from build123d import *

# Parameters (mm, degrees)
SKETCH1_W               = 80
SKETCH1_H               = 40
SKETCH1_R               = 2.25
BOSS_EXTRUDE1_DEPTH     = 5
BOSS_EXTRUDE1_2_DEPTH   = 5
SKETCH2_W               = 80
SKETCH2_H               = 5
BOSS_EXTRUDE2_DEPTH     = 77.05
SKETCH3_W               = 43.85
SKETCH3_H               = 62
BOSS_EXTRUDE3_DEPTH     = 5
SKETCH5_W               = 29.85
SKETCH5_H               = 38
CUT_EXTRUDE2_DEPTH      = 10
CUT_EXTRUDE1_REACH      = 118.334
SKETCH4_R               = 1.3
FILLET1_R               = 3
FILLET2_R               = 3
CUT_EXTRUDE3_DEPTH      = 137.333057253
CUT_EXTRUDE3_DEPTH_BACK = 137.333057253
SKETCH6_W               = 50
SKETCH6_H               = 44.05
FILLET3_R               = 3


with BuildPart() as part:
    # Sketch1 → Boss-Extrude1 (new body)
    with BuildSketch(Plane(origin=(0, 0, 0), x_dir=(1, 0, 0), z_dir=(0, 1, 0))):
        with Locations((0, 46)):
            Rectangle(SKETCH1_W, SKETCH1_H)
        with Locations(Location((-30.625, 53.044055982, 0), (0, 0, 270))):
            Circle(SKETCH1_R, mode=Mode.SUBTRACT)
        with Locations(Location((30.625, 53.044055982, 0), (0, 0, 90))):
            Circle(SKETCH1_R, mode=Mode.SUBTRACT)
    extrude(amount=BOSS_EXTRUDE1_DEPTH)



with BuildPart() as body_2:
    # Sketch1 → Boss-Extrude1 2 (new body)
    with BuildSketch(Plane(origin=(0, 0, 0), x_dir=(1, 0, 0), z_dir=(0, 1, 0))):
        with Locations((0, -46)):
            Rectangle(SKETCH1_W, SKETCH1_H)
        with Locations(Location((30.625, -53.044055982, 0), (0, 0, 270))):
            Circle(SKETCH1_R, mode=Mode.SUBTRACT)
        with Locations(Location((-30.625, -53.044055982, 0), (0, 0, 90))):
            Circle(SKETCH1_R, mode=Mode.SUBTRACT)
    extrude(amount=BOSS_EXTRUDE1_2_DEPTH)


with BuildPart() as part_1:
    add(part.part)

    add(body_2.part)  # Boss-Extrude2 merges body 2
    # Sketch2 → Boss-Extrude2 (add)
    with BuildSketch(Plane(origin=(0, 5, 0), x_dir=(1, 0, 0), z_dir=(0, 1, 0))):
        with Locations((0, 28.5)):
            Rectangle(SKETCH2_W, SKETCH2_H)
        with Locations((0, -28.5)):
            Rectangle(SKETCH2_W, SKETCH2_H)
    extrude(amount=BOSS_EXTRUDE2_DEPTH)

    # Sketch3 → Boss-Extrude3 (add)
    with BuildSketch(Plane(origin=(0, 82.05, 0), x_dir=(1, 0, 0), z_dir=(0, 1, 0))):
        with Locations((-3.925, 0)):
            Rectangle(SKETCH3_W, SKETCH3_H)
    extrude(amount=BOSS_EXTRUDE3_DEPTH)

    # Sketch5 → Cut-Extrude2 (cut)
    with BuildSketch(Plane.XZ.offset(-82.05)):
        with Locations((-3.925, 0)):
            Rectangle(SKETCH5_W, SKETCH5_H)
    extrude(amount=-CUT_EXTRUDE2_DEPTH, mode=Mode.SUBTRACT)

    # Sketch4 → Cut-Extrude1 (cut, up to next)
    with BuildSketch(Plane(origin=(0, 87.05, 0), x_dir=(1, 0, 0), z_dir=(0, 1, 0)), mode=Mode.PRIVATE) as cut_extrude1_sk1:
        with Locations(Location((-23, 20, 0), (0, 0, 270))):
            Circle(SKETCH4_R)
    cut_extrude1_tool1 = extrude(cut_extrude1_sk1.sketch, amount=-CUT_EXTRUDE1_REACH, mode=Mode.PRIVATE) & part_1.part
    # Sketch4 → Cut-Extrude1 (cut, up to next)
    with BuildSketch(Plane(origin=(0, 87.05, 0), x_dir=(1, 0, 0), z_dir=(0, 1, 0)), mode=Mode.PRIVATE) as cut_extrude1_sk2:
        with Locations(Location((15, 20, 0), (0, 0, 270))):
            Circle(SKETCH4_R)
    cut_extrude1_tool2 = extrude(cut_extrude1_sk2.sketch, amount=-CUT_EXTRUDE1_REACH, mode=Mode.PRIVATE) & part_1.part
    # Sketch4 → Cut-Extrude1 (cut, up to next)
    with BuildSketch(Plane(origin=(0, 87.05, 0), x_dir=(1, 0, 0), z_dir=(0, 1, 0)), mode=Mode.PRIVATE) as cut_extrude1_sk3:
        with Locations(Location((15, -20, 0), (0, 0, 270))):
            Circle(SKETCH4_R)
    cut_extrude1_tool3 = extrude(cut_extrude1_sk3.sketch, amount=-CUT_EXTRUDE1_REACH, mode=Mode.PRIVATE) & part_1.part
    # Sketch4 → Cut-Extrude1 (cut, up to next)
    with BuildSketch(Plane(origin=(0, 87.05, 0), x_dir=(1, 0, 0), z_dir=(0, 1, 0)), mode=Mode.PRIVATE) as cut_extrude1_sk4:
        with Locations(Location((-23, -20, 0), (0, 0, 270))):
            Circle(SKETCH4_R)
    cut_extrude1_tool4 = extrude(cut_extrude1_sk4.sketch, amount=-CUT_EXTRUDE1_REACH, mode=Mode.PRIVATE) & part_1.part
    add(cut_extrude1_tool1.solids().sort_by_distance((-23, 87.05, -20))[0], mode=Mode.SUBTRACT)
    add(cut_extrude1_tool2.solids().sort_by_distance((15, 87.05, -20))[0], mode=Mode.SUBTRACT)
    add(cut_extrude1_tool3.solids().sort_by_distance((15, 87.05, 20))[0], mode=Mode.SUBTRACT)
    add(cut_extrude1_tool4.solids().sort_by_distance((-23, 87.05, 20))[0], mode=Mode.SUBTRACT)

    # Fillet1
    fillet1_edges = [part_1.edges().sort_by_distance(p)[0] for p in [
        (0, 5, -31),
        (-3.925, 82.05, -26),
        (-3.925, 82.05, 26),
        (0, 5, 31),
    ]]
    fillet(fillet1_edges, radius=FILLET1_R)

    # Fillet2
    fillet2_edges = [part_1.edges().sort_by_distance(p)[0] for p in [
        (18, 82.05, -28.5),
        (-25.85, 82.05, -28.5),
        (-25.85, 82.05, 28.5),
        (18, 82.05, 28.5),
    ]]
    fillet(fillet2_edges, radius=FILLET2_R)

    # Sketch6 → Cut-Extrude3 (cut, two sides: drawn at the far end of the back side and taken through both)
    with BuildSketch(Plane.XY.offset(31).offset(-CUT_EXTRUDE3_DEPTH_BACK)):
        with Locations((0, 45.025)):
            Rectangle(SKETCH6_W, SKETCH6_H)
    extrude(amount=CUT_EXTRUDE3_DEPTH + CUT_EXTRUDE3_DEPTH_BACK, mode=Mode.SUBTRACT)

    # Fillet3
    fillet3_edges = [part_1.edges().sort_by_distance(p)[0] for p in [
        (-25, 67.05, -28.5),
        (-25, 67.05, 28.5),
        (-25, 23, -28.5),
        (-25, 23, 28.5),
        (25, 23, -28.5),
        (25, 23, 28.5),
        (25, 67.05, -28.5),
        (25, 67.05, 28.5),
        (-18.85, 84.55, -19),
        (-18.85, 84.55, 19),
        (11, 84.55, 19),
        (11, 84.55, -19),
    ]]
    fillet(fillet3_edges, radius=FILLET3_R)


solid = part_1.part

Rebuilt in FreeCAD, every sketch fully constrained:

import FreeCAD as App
import Part
import Sketcher
Q = App.Units.Quantity


def edges_at(feature, points):
    """Names of the edges that pass closest to the given points."""
    edges = feature.Shape.Edges
    near = lambda p: min(range(len(edges)), key=lambda i: edges[i].distToShape(Part.Vertex(*p))[0])
    return sorted({f"Edge{near(p) + 1}" for p in points})


def add_polygon(sketch, points):
    """Adds a closed chain of lines whose ends are joined by coincident constraints."""
    first, n = sketch.GeometryCount, len(points)
    for a, b in zip(points, points[1:] + points[:1]):
        sketch.addGeometry(Part.LineSegment(App.Vector(*a, 0), App.Vector(*b, 0)), False)
    for i in range(n):
        sketch.addConstraint(Sketcher.Constraint("Coincident", first + i, 2, first + (i + 1) % n, 1))

doc = App.newDocument("Part")
params = doc.addObject("Spreadsheet::Sheet", "Params")
for row, (alias, value) in enumerate([
    ("sketch1_diameter", "4.5 mm"),
    ("sketch1_width", "80 mm"),
    ("sketch1_height", "40 mm"),
    ("pad1_length", "5 mm"),
    ("sketch2_diameter", "4.5 mm"),
    ("sketch2_width", "80 mm"),
    ("sketch2_height", "40 mm"),
    ("pad2_length", "5 mm"),
    ("sketch3_width", "80 mm"),
    ("sketch3_height", "5 mm"),
    ("pad3_length", "77.05 mm"),
    ("sketch4_height", "62 mm"),
    ("sketch4_width", "43.85 mm"),
    ("pad4_length", "5 mm"),
    ("sketch5_height", "38 mm"),
    ("sketch5_width", "29.85 mm"),
    ("pocket1_length", "10 mm"),
    ("sketch6_diameter", "2.6 mm"),
    ("sketch7_diameter", "2.6 mm"),
    ("sketch8_diameter", "2.6 mm"),
    ("sketch9_diameter", "2.6 mm"),
    ("fillet_radius", "3 mm"),
    ("fillet2_radius", "3 mm"),
    ("sketch10_width", "50 mm"),
    ("sketch10_height", "44.05 mm"),
    ("fillet3_radius", "3 mm"),
], start=1):
    params.set(f"A{row}", alias)
    params.set(f"B{row}", "=" + value)
    params.setAlias(f"B{row}", alias)

body = doc.addObject("PartDesign::Body", "Body")

sketch1 = body.newObject("Sketcher::SketchObject", "Sketch")
sketch1.AttachmentSupport = (doc.getObject("XZ_Plane"), [""])
sketch1.MapMode = "FlatFace"
add_polygon(sketch1, [(-40, -66), (-40, -26), (40, -26), (40, -66)])
sketch1.addGeometry(Part.Circle(App.Vector(-30.6, -53, 0), App.Vector(0, 0, 1), 2.2), False)
sketch1.addGeometry(Part.Circle(App.Vector(30.6, -53, 0), App.Vector(0, 0, 1), 2.2), False)
sketch1.addConstraint(Sketcher.Constraint("Vertical", 0))
sketch1.addConstraint(Sketcher.Constraint("Horizontal", 1))
sketch1.addConstraint(Sketcher.Constraint("Vertical", 2))
sketch1.addConstraint(Sketcher.Constraint("Horizontal", 3))
sketch1.addConstraint(Sketcher.Constraint("Equal", 4, 5))
sketch1.addConstraint(Sketcher.Constraint("Symmetric", 4, 3, 5, 3, -2))
sketch1.addConstraint(Sketcher.Constraint("Diameter", 4, Q("4.5 mm")))
sketch1.addConstraint(Sketcher.Constraint("DistanceX", 1, 1, 1, 2, Q("80 mm")))
sketch1.addConstraint(Sketcher.Constraint("DistanceY", 0, 1, 0, 2, Q("40 mm")))
sketch1.addConstraint(Sketcher.Constraint("DistanceX", 0, 2, -1, 1, Q("40 mm")))
sketch1.addConstraint(Sketcher.Constraint("DistanceY", 0, 2, -1, 1, Q("26 mm")))
sketch1.addConstraint(Sketcher.Constraint("DistanceX", 4, 3, 5, 3, Q("61.25 mm")))
sketch1.addConstraint(Sketcher.Constraint("DistanceY", 4, 3, -1, 1, Q("53.044056 mm")))
sketch1.setExpression("Constraints[10]", "Params.sketch1_diameter")
sketch1.setExpression("Constraints[11]", "Params.sketch1_width")
sketch1.setExpression("Constraints[12]", "Params.sketch1_height")
pad1 = body.newObject("PartDesign::Pad", "Pad")
pad1.Profile = sketch1
pad1.setExpression("Length", "Params.pad1_length")
pad1.Reversed = True
body2 = doc.addObject("PartDesign::Body", "Body001")

sketch2 = body2.newObject("Sketcher::SketchObject", "Sketch001")
sketch2.AttachmentSupport = (doc.getObject("XZ_Plane001"), [""])
sketch2.MapMode = "FlatFace"
add_polygon(sketch2, [(-40, 26), (-40, 66), (40, 66), (40, 26)])
sketch2.addGeometry(Part.Circle(App.Vector(-30.6, 53, 0), App.Vector(0, 0, 1), 2.2), False)
sketch2.addGeometry(Part.Circle(App.Vector(30.6, 53, 0), App.Vector(0, 0, 1), 2.2), False)
sketch2.addConstraint(Sketcher.Constraint("Vertical", 0))
sketch2.addConstraint(Sketcher.Constraint("Horizontal", 1))
sketch2.addConstraint(Sketcher.Constraint("Vertical", 2))
sketch2.addConstraint(Sketcher.Constraint("Horizontal", 3))
sketch2.addConstraint(Sketcher.Constraint("Equal", 4, 5))
sketch2.addConstraint(Sketcher.Constraint("Symmetric", 4, 3, 5, 3, -2))
sketch2.addConstraint(Sketcher.Constraint("Diameter", 4, Q("4.5 mm")))
sketch2.addConstraint(Sketcher.Constraint("DistanceX", 1, 1, 1, 2, Q("80 mm")))
sketch2.addConstraint(Sketcher.Constraint("DistanceY", 0, 1, 0, 2, Q("40 mm")))
sketch2.addConstraint(Sketcher.Constraint("DistanceX", 0, 2, -1, 1, Q("40 mm")))
sketch2.addConstraint(Sketcher.Constraint("DistanceY", -1, 1, 0, 2, Q("66 mm")))
sketch2.addConstraint(Sketcher.Constraint("DistanceX", 4, 3, 5, 3, Q("61.25 mm")))
sketch2.addConstraint(Sketcher.Constraint("DistanceY", -1, 1, 4, 3, Q("53.044056 mm")))
sketch2.setExpression("Constraints[10]", "Params.sketch2_diameter")
sketch2.setExpression("Constraints[11]", "Params.sketch2_width")
sketch2.setExpression("Constraints[12]", "Params.sketch2_height")
pad2 = body2.newObject("PartDesign::Pad", "Pad001")
pad2.Profile = sketch2
pad2.setExpression("Length", "Params.pad2_length")
pad2.Reversed = True
body.AllowCompound = True
doc.recompute()

boolean = body.newObject("PartDesign::Boolean", "Boolean")
boolean.Type = "Fuse"
boolean.addObjects([body2])

sketch3 = body.newObject("Sketcher::SketchObject", "Sketch002")
sketch3.AttachmentSupport = (doc.getObject("XZ_Plane"), [""])
sketch3.MapMode = "FlatFace"
sketch3.AttachmentOffset = App.Placement(App.Vector(0, 0, -5), App.Rotation())
add_polygon(sketch3, [(-40, -31), (-40, -26), (40, -26), (40, -31)])
add_polygon(sketch3, [(-40, 26), (-40, 31), (40, 31), (40, 26)])
sketch3.addConstraint(Sketcher.Constraint("Vertical", 0))
sketch3.addConstraint(Sketcher.Constraint("Horizontal", 1))
sketch3.addConstraint(Sketcher.Constraint("Vertical", 2))
sketch3.addConstraint(Sketcher.Constraint("Horizontal", 3))
sketch3.addConstraint(Sketcher.Constraint("Vertical", 4))
sketch3.addConstraint(Sketcher.Constraint("Horizontal", 5))
sketch3.addConstraint(Sketcher.Constraint("Vertical", 6))
sketch3.addConstraint(Sketcher.Constraint("Horizontal", 7))
sketch3.addConstraint(Sketcher.Constraint("Symmetric", 2, 2, 4, 2, -1, 1))
sketch3.addConstraint(Sketcher.Constraint("Symmetric", 0, 2, 6, 2, -1, 1))
sketch3.addConstraint(Sketcher.Constraint("Vertical", 3, 2, 4, 2))
sketch3.addConstraint(Sketcher.Constraint("DistanceX", 1, 1, 1, 2, Q("80 mm")))
sketch3.addConstraint(Sketcher.Constraint("DistanceY", 0, 1, 0, 2, Q("5 mm")))
sketch3.addConstraint(Sketcher.Constraint("DistanceY", 0, 2, -1, 1, Q("26 mm")))
sketch3.setExpression("Constraints[19]", "Params.sketch3_width")
sketch3.setExpression("Constraints[20]", "Params.sketch3_height")
pad3 = body.newObject("PartDesign::Pad", "Pad002")
pad3.Profile = sketch3
pad3.setExpression("Length", "Params.pad3_length")
pad3.Reversed = True

sketch4 = body.newObject("Sketcher::SketchObject", "Sketch003")
sketch4.AttachmentSupport = (doc.getObject("XZ_Plane"), [""])
sketch4.MapMode = "FlatFace"
sketch4.AttachmentOffset = App.Placement(App.Vector(0, 0, -82.05), App.Rotation())
add_polygon(sketch4, [(-26, -31), (-26, 31), (18, 31), (18, -31)])
sketch4.addConstraint(Sketcher.Constraint("Vertical", 0))
sketch4.addConstraint(Sketcher.Constraint("Horizontal", 1))
sketch4.addConstraint(Sketcher.Constraint("Vertical", 2))
sketch4.addConstraint(Sketcher.Constraint("Horizontal", 3))
sketch4.addConstraint(Sketcher.Constraint("DistanceY", 0, 1, 0, 2, Q("62 mm")))
sketch4.addConstraint(Sketcher.Constraint("DistanceY", -1, 1, 0, 2, Q("31 mm")))
sketch4.addConstraint(Sketcher.Constraint("DistanceX", -1, 1, 1, 2, Q("18 mm")))
sketch4.addConstraint(Sketcher.Constraint("DistanceX", 1, 1, 1, 2, Q("43.85 mm")))
sketch4.setExpression("Constraints[8]", "Params.sketch4_height")
sketch4.setExpression("Constraints[11]", "Params.sketch4_width")
pad4 = body.newObject("PartDesign::Pad", "Pad003")
pad4.Profile = sketch4
pad4.setExpression("Length", "Params.pad4_length")
pad4.Reversed = True

sketch5 = body.newObject("Sketcher::SketchObject", "Sketch004")
sketch5.AttachmentSupport = (doc.getObject("XZ_Plane"), [""])
sketch5.MapMode = "FlatFace"
sketch5.AttachmentOffset = App.Placement(App.Vector(0, 0, -82.05), App.Rotation())
add_polygon(sketch5, [(-19, 19), (-19, -19), (11, -19), (11, 19)])
sketch5.addConstraint(Sketcher.Constraint("Vertical", 0))
sketch5.addConstraint(Sketcher.Constraint("Horizontal", 1))
sketch5.addConstraint(Sketcher.Constraint("Vertical", 2))
sketch5.addConstraint(Sketcher.Constraint("Horizontal", 3))
sketch5.addConstraint(Sketcher.Constraint("DistanceY", 0, 2, 0, 1, Q("38 mm")))
sketch5.addConstraint(Sketcher.Constraint("DistanceY", 0, 2, -1, 1, Q("19 mm")))
sketch5.addConstraint(Sketcher.Constraint("DistanceX", -1, 1, 1, 2, Q("11 mm")))
sketch5.addConstraint(Sketcher.Constraint("DistanceX", 1, 1, 1, 2, Q("29.85 mm")))
sketch5.setExpression("Constraints[8]", "Params.sketch5_height")
sketch5.setExpression("Constraints[11]", "Params.sketch5_width")
pocket1 = body.newObject("PartDesign::Pocket", "Pocket")
pocket1.Profile = sketch5
pocket1.setExpression("Length", "Params.pocket1_length")

sketch6 = body.newObject("Sketcher::SketchObject", "Sketch005")
sketch6.AttachmentSupport = (doc.getObject("XZ_Plane"), [""])
sketch6.MapMode = "FlatFace"
sketch6.AttachmentOffset = App.Placement(App.Vector(0, 0, -87.05), App.Rotation())
sketch6.addGeometry(Part.Circle(App.Vector(-23, -20, 0), App.Vector(0, 0, 1), 1.3), False)
sketch6.addConstraint(Sketcher.Constraint("Diameter", 0, Q("2.6 mm")))
sketch6.addConstraint(Sketcher.Constraint("DistanceX", 0, 3, -1, 1, Q("23 mm")))
sketch6.addConstraint(Sketcher.Constraint("DistanceY", 0, 3, -1, 1, Q("20 mm")))
sketch6.setExpression("Constraints[0]", "Params.sketch6_diameter")
pocket2 = body.newObject("PartDesign::Pocket", "Pocket001")
pocket2.Profile = sketch6
pocket2.Type = "UpToFirst"
pocket2.Reversed = True

sketch7 = body.newObject("Sketcher::SketchObject", "Sketch006")
sketch7.AttachmentSupport = (doc.getObject("XZ_Plane"), [""])
sketch7.MapMode = "FlatFace"
sketch7.AttachmentOffset = App.Placement(App.Vector(0, 0, -87.05), App.Rotation())
sketch7.addGeometry(Part.Circle(App.Vector(15, -20, 0), App.Vector(0, 0, 1), 1.3), False)
sketch7.addConstraint(Sketcher.Constraint("Diameter", 0, Q("2.6 mm")))
sketch7.addConstraint(Sketcher.Constraint("DistanceX", -1, 1, 0, 3, Q("15 mm")))
sketch7.addConstraint(Sketcher.Constraint("DistanceY", 0, 3, -1, 1, Q("20 mm")))
sketch7.setExpression("Constraints[0]", "Params.sketch7_diameter")
pocket3 = body.newObject("PartDesign::Pocket", "Pocket002")
pocket3.Profile = sketch7
pocket3.Type = "UpToFirst"
pocket3.Reversed = True

sketch8 = body.newObject("Sketcher::SketchObject", "Sketch007")
sketch8.AttachmentSupport = (doc.getObject("XZ_Plane"), [""])
sketch8.MapMode = "FlatFace"
sketch8.AttachmentOffset = App.Placement(App.Vector(0, 0, -87.05), App.Rotation())
sketch8.addGeometry(Part.Circle(App.Vector(15, 20, 0), App.Vector(0, 0, 1), 1.3), False)
sketch8.addConstraint(Sketcher.Constraint("Diameter", 0, Q("2.6 mm")))
sketch8.addConstraint(Sketcher.Constraint("DistanceX", -1, 1, 0, 3, Q("15 mm")))
sketch8.addConstraint(Sketcher.Constraint("DistanceY", -1, 1, 0, 3, Q("20 mm")))
sketch8.setExpression("Constraints[0]", "Params.sketch8_diameter")
pocket4 = body.newObject("PartDesign::Pocket", "Pocket003")
pocket4.Profile = sketch8
pocket4.Type = "UpToFirst"
pocket4.Reversed = True

sketch9 = body.newObject("Sketcher::SketchObject", "Sketch008")
sketch9.AttachmentSupport = (doc.getObject("XZ_Plane"), [""])
sketch9.MapMode = "FlatFace"
sketch9.AttachmentOffset = App.Placement(App.Vector(0, 0, -87.05), App.Rotation())
sketch9.addGeometry(Part.Circle(App.Vector(-23, 20, 0), App.Vector(0, 0, 1), 1.3), False)
sketch9.addConstraint(Sketcher.Constraint("Diameter", 0, Q("2.6 mm")))
sketch9.addConstraint(Sketcher.Constraint("DistanceX", 0, 3, -1, 1, Q("23 mm")))
sketch9.addConstraint(Sketcher.Constraint("DistanceY", -1, 1, 0, 3, Q("20 mm")))
sketch9.setExpression("Constraints[0]", "Params.sketch9_diameter")
pocket5 = body.newObject("PartDesign::Pocket", "Pocket004")
pocket5.Profile = sketch9
pocket5.Type = "UpToFirst"
pocket5.Reversed = True
doc.recompute()

fillet = body.newObject("PartDesign::Fillet", "Fillet")
fillet.Base = (pocket5, edges_at(pocket5, [
    (0, 5, -31),
    (-3.925, 82.05, -26),
    (-3.925, 82.05, 26),
    (0, 5, 31),
]))
fillet.setExpression("Radius", "Params.fillet_radius")
doc.recompute()

fillet2 = body.newObject("PartDesign::Fillet", "Fillet001")
fillet2.Base = (fillet, edges_at(fillet, [
    (18, 82.05, -28.5),
    (-25.85, 82.05, -28.5),
    (-25.85, 82.05, 28.5),
    (18, 82.05, 28.5),
]))
fillet2.setExpression("Radius", "Params.fillet2_radius")

sketch10 = body.newObject("Sketcher::SketchObject", "Sketch009")
sketch10.AttachmentSupport = (doc.getObject("XY_Plane"), [""])
sketch10.MapMode = "FlatFace"
sketch10.AttachmentOffset = App.Placement(App.Vector(0, 0, 31), App.Rotation())
add_polygon(sketch10, [(-25, 67), (-25, 23), (25, 23), (25, 67)])
sketch10.addConstraint(Sketcher.Constraint("Vertical", 0))
sketch10.addConstraint(Sketcher.Constraint("Horizontal", 1))
sketch10.addConstraint(Sketcher.Constraint("Vertical", 2))
sketch10.addConstraint(Sketcher.Constraint("Horizontal", 3))
sketch10.addConstraint(Sketcher.Constraint("DistanceX", 1, 1, 1, 2, Q("50 mm")))
sketch10.addConstraint(Sketcher.Constraint("DistanceX", 0, 2, -1, 1, Q("25 mm")))
sketch10.addConstraint(Sketcher.Constraint("DistanceY", -1, 1, 0, 2, Q("23 mm")))
sketch10.addConstraint(Sketcher.Constraint("DistanceY", 0, 2, 0, 1, Q("44.05 mm")))
sketch10.setExpression("Constraints[8]", "Params.sketch10_width")
sketch10.setExpression("Constraints[11]", "Params.sketch10_height")
pocket6 = body.newObject("PartDesign::Pocket", "Pocket005")
pocket6.Profile = sketch10
pocket6.Type = "ThroughAll"
pocket6.Midplane = True
doc.recompute()

fillet3 = body.newObject("PartDesign::Fillet", "Fillet002")
fillet3.Base = (pocket6, edges_at(pocket6, [
    (-25, 67.05, -28.5),
    (-25, 67.05, 28.5),
    (-25, 23, -28.5),
    (-25, 23, 28.5),
    (25, 23, -28.5),
    (25, 23, 28.5),
    (25, 67.05, -28.5),
    (25, 67.05, 28.5),
    (-18.85, 84.55, -19),
    (-18.85, 84.55, 19),
    (11, 84.55, 19),
    (11, 84.55, -19),
]))
fillet3.setExpression("Radius", "Params.fillet3_radius")

doc.recompute()
